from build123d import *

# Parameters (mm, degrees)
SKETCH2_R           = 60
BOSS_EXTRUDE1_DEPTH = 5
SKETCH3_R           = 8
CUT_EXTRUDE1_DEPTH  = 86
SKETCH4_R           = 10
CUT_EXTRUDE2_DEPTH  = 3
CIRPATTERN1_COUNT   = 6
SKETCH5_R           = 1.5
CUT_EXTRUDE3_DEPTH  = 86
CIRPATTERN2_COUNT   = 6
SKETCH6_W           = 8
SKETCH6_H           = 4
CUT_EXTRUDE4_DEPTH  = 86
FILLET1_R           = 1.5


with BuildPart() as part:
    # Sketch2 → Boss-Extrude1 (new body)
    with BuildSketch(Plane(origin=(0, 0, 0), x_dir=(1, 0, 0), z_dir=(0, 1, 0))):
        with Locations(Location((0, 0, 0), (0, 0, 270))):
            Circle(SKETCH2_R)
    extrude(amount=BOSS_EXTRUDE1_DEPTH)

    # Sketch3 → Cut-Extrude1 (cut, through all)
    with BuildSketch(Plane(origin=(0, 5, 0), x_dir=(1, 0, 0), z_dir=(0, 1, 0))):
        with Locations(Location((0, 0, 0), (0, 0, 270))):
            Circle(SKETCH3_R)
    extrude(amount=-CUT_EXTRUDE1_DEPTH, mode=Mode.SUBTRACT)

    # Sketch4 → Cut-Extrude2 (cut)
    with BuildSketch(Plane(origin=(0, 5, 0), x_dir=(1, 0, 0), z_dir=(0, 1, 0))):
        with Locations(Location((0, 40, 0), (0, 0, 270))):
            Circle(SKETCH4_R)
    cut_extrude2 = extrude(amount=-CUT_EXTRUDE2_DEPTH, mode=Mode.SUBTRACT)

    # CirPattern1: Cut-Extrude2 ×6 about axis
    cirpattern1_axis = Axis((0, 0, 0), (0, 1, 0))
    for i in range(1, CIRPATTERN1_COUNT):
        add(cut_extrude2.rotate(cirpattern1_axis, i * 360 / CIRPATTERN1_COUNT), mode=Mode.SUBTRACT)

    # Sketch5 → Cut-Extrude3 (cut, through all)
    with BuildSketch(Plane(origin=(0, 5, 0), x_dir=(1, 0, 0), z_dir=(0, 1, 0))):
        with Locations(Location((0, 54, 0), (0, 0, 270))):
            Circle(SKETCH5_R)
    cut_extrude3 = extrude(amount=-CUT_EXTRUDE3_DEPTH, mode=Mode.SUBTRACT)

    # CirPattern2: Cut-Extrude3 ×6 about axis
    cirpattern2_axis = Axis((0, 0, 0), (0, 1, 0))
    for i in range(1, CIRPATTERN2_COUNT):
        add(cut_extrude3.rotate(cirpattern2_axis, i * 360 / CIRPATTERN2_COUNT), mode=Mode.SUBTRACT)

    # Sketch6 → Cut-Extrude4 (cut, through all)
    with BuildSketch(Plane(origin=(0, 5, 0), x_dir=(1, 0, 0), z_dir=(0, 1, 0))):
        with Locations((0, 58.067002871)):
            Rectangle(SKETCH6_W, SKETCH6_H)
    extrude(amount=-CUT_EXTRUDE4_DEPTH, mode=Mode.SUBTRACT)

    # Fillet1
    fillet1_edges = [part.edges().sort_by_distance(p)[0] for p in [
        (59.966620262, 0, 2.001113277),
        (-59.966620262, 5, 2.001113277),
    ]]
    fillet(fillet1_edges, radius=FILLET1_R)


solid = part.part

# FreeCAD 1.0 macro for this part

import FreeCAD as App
import Part
import Sketcher


def edges_at(feature, points):
    """Names of the edges that pass closest to the given points."""
    edges = feature.Shape.Edges
    near = lambda p: min(range(len(edges)), key=lambda i: edges[i].distToShape(Part.Vertex(*p))[0])
    return sorted({f"Edge{near(p) + 1}" for p in points})


def add_polygon(sketch, points):
    """Adds a closed chain of lines whose ends are joined by coincident constraints."""
    first, n = sketch.GeometryCount, len(points)
    for a, b in zip(points, points[1:] + points[:1]):
        sketch.addGeometry(Part.LineSegment(App.Vector(*a, 0), App.Vector(*b, 0)), False)
    for i in range(n):
        sketch.addConstraint(Sketcher.Constraint("Coincident", first + i, 2, first + (i + 1) % n, 1))

doc = App.newDocument("Part")
params = doc.addObject("Spreadsheet::Sheet", "Params")
for row, (alias, value) in enumerate([
    ("sketch1_diameter", "120 mm"),
    ("pad1_length", "5 mm"),
    ("sketch2_diameter", "16 mm"),
    ("sketch3_diameter", "20 mm"),
    ("pocket2_length", "3 mm"),
    ("sketch4_diameter", "3 mm"),
    ("sketch5_width", "8 mm"),
    ("sketch5_height", "4 mm"),
    ("fillet_radius", "1.5 mm"),
], start=1):
    params.set(f"A{row}", alias)
    params.set(f"B{row}", "=" + value)
    params.setAlias(f"B{row}", alias)

body = doc.addObject("PartDesign::Body", "Body")

# Sketch on XZ plane
sketch1 = body.newObject("Sketcher::SketchObject", "Sketch")
sketch1.AttachmentSupport = (doc.getObject("XZ_Plane"), [""])
sketch1.MapMode = "FlatFace"
sketch1.addGeometry(Part.Circle(App.Vector(0, 0, 0), App.Vector(0, 0, 1), 60), False)
sketch1.addConstraint([
    Sketcher.Constraint("Coincident", 0, 3, -1, 1),
    Sketcher.Constraint("Diameter", 0, 120.0),
])
sketch1.setExpression("Constraints[1]", "Params.sketch1_diameter")
pad1 = body.newObject("PartDesign::Pad", "Pad")
pad1.Profile = sketch1
pad1.setExpression("Length", "Params.pad1_length")
pad1.Reversed = True

# Sketch on XZ plane
sketch2 = body.newObject("Sketcher::SketchObject", "Sketch001")
sketch2.AttachmentSupport = (doc.getObject("XZ_Plane"), [""])
sketch2.MapMode = "FlatFace"
sketch2.AttachmentOffset = App.Placement(App.Vector(0, 0, -5), App.Rotation())
sketch2.addGeometry(Part.Circle(App.Vector(0, 0, 0), App.Vector(0, 0, 1), 8), False)
sketch2.addConstraint([
    Sketcher.Constraint("Coincident", 0, 3, -1, 1),
    Sketcher.Constraint("Diameter", 0, 16.0),
])
sketch2.setExpression("Constraints[1]", "Params.sketch2_diameter")
pocket1 = body.newObject("PartDesign::Pocket", "Pocket")
pocket1.Profile = sketch2
pocket1.Type = "ThroughAll"
pocket1.Reversed = True

# Sketch on XZ plane
sketch3 = body.newObject("Sketcher::SketchObject", "Sketch002")
sketch3.AttachmentSupport = (doc.getObject("XZ_Plane"), [""])
sketch3.MapMode = "FlatFace"
sketch3.AttachmentOffset = App.Placement(App.Vector(0, 0, -5), App.Rotation())
sketch3.addGeometry(Part.Circle(App.Vector(0, -40, 0), App.Vector(0, 0, 1), 10), False)
sketch3.addConstraint([
    Sketcher.Constraint("PointOnObject", 0, 3, -2),
    Sketcher.Constraint("Diameter", 0, 20.0),
    Sketcher.Constraint("DistanceY", 0, 3, -1, 1, 40.0),
])
sketch3.setExpression("Constraints[1]", "Params.sketch3_diameter")
pocket2 = body.newObject("PartDesign::Pocket", "Pocket001")
pocket2.Profile = sketch3
pocket2.setExpression("Length", "Params.pocket2_length")
pocket2.Reversed = True
doc.recompute()

polarpattern = body.newObject("PartDesign::PolarPattern", "PolarPattern")
polarpattern.Originals = [pocket2]
polarpattern.Axis = (doc.getObject("Y_Axis"), [""])
polarpattern.Angle = 360
polarpattern.Occurrences = 6
body.Tip = polarpattern

# Sketch on XZ plane
sketch4 = body.newObject("Sketcher::SketchObject", "Sketch003")
sketch4.AttachmentSupport = (doc.getObject("XZ_Plane"), [""])
sketch4.MapMode = "FlatFace"
sketch4.AttachmentOffset = App.Placement(App.Vector(0, 0, -5), App.Rotation())
sketch4.addGeometry(Part.Circle(App.Vector(0, -54, 0), App.Vector(0, 0, 1), 1.5), False)
sketch4.addConstraint([
    Sketcher.Constraint("PointOnObject", 0, 3, -2),
    Sketcher.Constraint("Diameter", 0, 3.0),
    Sketcher.Constraint("DistanceY", 0, 3, -1, 1, 54.0),
])
sketch4.setExpression("Constraints[1]", "Params.sketch4_diameter")
pocket3 = body.newObject("PartDesign::Pocket", "Pocket002")
pocket3.Profile = sketch4
pocket3.Type = "ThroughAll"
pocket3.Reversed = True
doc.recompute()

polarpattern2 = body.newObject("PartDesign::PolarPattern", "PolarPattern001")
polarpattern2.Originals = [pocket3]
polarpattern2.Axis = (doc.getObject("Y_Axis"), [""])
polarpattern2.Angle = 360
polarpattern2.Occurrences = 6
body.Tip = polarpattern2

# Sketch on XZ plane
sketch5 = body.newObject("Sketcher::SketchObject", "Sketch004")
sketch5.AttachmentSupport = (doc.getObject("XZ_Plane"), [""])
sketch5.MapMode = "FlatFace"
sketch5.AttachmentOffset = App.Placement(App.Vector(0, 0, -5), App.Rotation())
add_polygon(sketch5, [(-4, -60.067003), (-4, -56.067003), (4, -56.067003), (4, -60.067003)])  # lines 0-3
sketch5.addConstraint([
    Sketcher.Constraint("Vertical", 0),
    Sketcher.Constraint("Horizontal", 1),
    Sketcher.Constraint("Vertical", 2),
    Sketcher.Constraint("Horizontal", 3),
    Sketcher.Constraint("DistanceX", 1, 1, 1, 2, 8.0),
    Sketcher.Constraint("DistanceY", 0, 1, 0, 2, 4.0),
    Sketcher.Constraint("DistanceX", 0, 2, -1, 1, 4.0),
    Sketcher.Constraint("DistanceY", 0, 2, -1, 1, 56.067003),
])
sketch5.setExpression("Constraints[8]", "Params.sketch5_width")
sketch5.setExpression("Constraints[9]", "Params.sketch5_height")
pocket4 = body.newObject("PartDesign::Pocket", "Pocket003")
pocket4.Profile = sketch5
pocket4.Type = "ThroughAll"
pocket4.Reversed = True
doc.recompute()

fillet = body.newObject("PartDesign::Fillet", "Fillet")
fillet.Base = (pocket4, edges_at(pocket4, [(59.967, 0, 2.001), (-59.967, 5, 2.001)]))
fillet.setExpression("Radius", "Params.fillet_radius")

doc.recompute()
